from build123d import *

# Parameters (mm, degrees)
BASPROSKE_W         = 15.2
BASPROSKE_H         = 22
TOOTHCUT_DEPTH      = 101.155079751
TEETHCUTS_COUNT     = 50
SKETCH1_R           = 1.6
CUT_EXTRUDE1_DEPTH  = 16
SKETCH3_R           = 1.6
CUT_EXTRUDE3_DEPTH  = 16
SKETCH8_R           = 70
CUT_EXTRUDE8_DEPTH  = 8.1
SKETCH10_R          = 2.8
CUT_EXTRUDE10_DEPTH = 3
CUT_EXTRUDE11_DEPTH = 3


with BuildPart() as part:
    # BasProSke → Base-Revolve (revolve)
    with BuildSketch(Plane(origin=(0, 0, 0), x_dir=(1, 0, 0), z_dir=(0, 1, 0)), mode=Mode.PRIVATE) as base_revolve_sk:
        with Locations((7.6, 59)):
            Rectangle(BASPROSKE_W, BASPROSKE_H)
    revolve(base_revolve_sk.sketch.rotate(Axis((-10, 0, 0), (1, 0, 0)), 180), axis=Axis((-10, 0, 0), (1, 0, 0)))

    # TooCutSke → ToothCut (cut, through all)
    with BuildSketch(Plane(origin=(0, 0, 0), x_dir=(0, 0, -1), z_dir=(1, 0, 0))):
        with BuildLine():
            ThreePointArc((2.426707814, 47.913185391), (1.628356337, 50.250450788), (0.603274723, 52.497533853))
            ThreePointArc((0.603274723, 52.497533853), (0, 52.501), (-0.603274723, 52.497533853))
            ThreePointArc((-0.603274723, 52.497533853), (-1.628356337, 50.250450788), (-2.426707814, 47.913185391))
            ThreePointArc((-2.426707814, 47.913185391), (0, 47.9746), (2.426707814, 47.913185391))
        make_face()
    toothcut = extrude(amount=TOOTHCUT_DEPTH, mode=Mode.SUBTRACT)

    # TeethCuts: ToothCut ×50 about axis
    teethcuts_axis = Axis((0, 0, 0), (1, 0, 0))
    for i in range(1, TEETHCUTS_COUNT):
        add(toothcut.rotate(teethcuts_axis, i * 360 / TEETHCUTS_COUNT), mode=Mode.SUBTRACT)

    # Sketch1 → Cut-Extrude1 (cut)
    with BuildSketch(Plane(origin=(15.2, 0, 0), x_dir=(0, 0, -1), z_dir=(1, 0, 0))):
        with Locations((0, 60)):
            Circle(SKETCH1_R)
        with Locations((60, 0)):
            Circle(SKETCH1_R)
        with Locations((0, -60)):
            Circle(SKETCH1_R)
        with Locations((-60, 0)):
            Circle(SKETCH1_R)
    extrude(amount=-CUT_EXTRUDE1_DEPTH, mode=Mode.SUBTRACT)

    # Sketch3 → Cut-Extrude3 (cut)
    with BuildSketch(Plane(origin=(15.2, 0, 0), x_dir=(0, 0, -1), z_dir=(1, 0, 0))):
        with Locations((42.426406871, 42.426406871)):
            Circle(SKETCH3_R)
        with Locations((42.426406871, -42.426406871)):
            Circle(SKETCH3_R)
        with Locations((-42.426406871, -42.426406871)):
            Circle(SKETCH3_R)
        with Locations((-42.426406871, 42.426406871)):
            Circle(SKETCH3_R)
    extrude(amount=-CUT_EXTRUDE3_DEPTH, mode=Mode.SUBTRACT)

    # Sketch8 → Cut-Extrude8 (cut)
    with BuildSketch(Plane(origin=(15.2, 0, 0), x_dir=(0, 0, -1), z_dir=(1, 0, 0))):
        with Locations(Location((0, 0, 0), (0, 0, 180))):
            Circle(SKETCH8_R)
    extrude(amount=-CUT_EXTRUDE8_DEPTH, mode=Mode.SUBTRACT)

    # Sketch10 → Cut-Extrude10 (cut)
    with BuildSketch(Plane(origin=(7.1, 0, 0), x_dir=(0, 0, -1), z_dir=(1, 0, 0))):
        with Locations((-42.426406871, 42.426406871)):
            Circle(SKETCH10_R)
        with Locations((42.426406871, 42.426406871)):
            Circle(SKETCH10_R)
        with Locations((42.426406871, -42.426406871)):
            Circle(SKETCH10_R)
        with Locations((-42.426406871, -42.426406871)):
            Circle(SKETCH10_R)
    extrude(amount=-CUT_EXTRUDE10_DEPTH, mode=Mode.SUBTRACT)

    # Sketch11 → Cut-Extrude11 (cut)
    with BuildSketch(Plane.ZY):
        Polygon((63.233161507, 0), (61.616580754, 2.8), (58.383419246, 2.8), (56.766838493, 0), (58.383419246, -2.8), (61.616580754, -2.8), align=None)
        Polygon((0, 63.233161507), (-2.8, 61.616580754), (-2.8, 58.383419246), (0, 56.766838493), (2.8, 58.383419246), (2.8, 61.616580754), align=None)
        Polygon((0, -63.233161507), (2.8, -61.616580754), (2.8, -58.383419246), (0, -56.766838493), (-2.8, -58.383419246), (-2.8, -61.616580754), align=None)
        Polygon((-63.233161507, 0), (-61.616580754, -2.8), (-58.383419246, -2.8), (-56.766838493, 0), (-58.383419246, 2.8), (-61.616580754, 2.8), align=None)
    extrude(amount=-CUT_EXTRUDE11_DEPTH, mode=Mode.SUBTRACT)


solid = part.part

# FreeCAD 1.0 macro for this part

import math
import FreeCAD as App
import Part
import Sketcher
Q = App.Units.Quantity

doc = App.newDocument("Part")
params = doc.addObject("Spreadsheet::Sheet", "Params")
for row, (alias, value) in enumerate([
    ("sketch1_height", "22 mm"),
    ("sketch1_width", "15.2 mm"),
    ("revolution_angle", "360 deg"),
    ("sketch2_radius", "25 mm"),
    ("sketch3_diameter", "3.2 mm"),
    ("pocket2_length", "16 mm"),
    ("sketch4_diameter", "3.2 mm"),
    ("pocket3_length", "16 mm"),
    ("sketch5_diameter", "140 mm"),
    ("pocket4_length", "8.1 mm"),
    ("sketch6_diameter", "5.6 mm"),
    ("pocket5_length", "3 mm"),
    ("pocket6_length", "3 mm"),
], start=1):
    params.set(f"A{row}", alias)
    params.set(f"B{row}", "=" + value)
    params.setAlias(f"B{row}", alias)

body = doc.addObject("PartDesign::Body", "Body")

sketch1 = doc.addObject("Sketcher::SketchObject", "Sketch")
body.addObject(sketch1)
sketch1.AttachmentSupport = (doc.XZ_Plane, [""])
sketch1.MapMode = "FlatFace"
sketch1.addGeometry([
    Part.LineSegment(App.Vector(0, -70, 0), App.Vector(0, -48, 0)),
    Part.LineSegment(App.Vector(0, -48, 0), App.Vector(15, -48, 0)),
    Part.LineSegment(App.Vector(15, -48, 0), App.Vector(15, -70, 0)),
    Part.LineSegment(App.Vector(15, -70, 0), App.Vector(0, -70, 0)),
], False)
sketch1.addConstraint([
    Sketcher.Constraint("Coincident", 0, 2, 1, 1),
    Sketcher.Constraint("Coincident", 1, 2, 2, 1),
    Sketcher.Constraint("Coincident", 2, 2, 3, 1),
    Sketcher.Constraint("Coincident", 3, 2, 0, 1),
    Sketcher.Constraint("Vertical", 0),
    Sketcher.Constraint("Horizontal", 1),
    Sketcher.Constraint("Vertical", 2),
    Sketcher.Constraint("Horizontal", 3),
    Sketcher.Constraint("PointOnObject", 0, 2, -2),
    Sketcher.Constraint("DistanceY", 0, 1, 0, 2, 22.0),
    Sketcher.Constraint("DistanceX", 1, 1, 1, 2, 15.2),
    Sketcher.Constraint("DistanceY", 0, 2, -1, 1, 48.0),
])
sketch1.setExpression("Constraints[9]", "Params.sketch1_height")
sketch1.setExpression("Constraints[10]", "Params.sketch1_width")
revolution = doc.addObject("PartDesign::Revolution", "Revolution")
body.addObject(revolution)
revolution.Profile = sketch1
revolution.ReferenceAxis = (sketch1, ["H_Axis"])
revolution.setExpression("Angle", "Params.revolution_angle")

sketch2 = doc.addObject("Sketcher::SketchObject", "Sketch001")
body.addObject(sketch2)
sketch2.AttachmentSupport = (doc.YZ_Plane, [""])
sketch2.MapMode = "FlatFace"
sketch2.addGeometry([
    Part.ArcOfCircle(Part.Circle(App.Vector(41, 21.6, 0), App.Vector(0, 0, 1), 25), math.radians(-73.97), math.radians(-62.65)),
    Part.ArcOfCircle(Part.Circle(App.Vector(0, 0, 0), App.Vector(0, 0, 1), 52.5), math.radians(-0.66), math.radians(0.66)),
    Part.ArcOfCircle(Part.Circle(App.Vector(41, -21.6, 0), App.Vector(0, 0, 1), 25), math.radians(62.65), math.radians(73.97)),
    Part.ArcOfCircle(Part.Circle(App.Vector(0, 0, 0), App.Vector(0, 0, 1), 48), math.radians(-2.9), math.radians(2.9)),
], False)
sketch2.addConstraint([
    Sketcher.Constraint("Coincident", 0, 2, 1, 1),
    Sketcher.Constraint("Coincident", 1, 2, 2, 1),
    Sketcher.Constraint("Coincident", 2, 2, 3, 2),
    Sketcher.Constraint("Coincident", 3, 1, 0, 1),
    Sketcher.Constraint("Coincident", 1, 3, -1, 1),
    Sketcher.Constraint("Coincident", 3, 3, -1, 1),
    Sketcher.Constraint("Equal", 0, 2),
    Sketcher.Constraint("Symmetric", 0, 3, 2, 3, -1),
    Sketcher.Constraint("Radius", 0, 25.0),
    Sketcher.Constraint("Radius", 3, 47.9746),
    Sketcher.Constraint("Radius", 1, 52.501006),
    Sketcher.Constraint("DistanceY", 0, 2, 0, 3, 22.2048),
    Sketcher.Constraint("DistanceY", 2, 3, 0, 3, 43.203051),
])
sketch2.setExpression("Constraints[8]", "Params.sketch2_radius")
pocket1 = doc.addObject("PartDesign::Pocket", "Pocket")
body.addObject(pocket1)
pocket1.Profile = sketch2
pocket1.Type = "ThroughAll"
pocket1.Reversed = True
doc.recompute()

polarpattern = doc.addObject("PartDesign::PolarPattern", "PolarPattern")
body.addObject(polarpattern)
polarpattern.Originals = [pocket1]
polarpattern.Axis = (doc.X_Axis, [""])
polarpattern.Angle = 360
polarpattern.Occurrences = 50
body.Tip = polarpattern

sketch3 = doc.addObject("Sketcher::SketchObject", "Sketch002")
body.addObject(sketch3)
sketch3.AttachmentSupport = (doc.YZ_Plane, [""])
sketch3.MapMode = "FlatFace"
sketch3.AttachmentOffset = App.Placement(App.Vector(0, 0, 15.2), App.Rotation())
sketch3.addGeometry([
    Part.Circle(App.Vector(60, 0, 0), App.Vector(0, 0, 1), 1.6),
    Part.Circle(App.Vector(0, -60, 0), App.Vector(0, 0, 1), 1.6),
    Part.Circle(App.Vector(-60, 0, 0), App.Vector(0, 0, 1), 1.6),
    Part.Circle(App.Vector(0, 60, 0), App.Vector(0, 0, 1), 1.6),
], False)
sketch3.addConstraint([
    Sketcher.Constraint("Equal", 0, 1),
    Sketcher.Constraint("Equal", 1, 2),
    Sketcher.Constraint("Equal", 2, 3),
    Sketcher.Constraint("Symmetric", 0, 3, 2, 3, -1, 1),
    Sketcher.Constraint("Symmetric", 1, 3, 3, 3, -1, 1),
    Sketcher.Constraint("PointOnObject", 0, 3, -1),
    Sketcher.Constraint("PointOnObject", 1, 3, -2),
    Sketcher.Constraint("Diameter", 0, 3.2),
    Sketcher.Constraint("DistanceX", -1, 1, 0, 3, 60.0),
    Sketcher.Constraint("DistanceY", 1, 3, -1, 1, 60.0),
])
sketch3.setExpression("Constraints[7]", "Params.sketch3_diameter")
pocket2 = doc.addObject("PartDesign::Pocket", "Pocket001")
body.addObject(pocket2)
pocket2.Profile = sketch3
pocket2.setExpression("Length", "Params.pocket2_length")

sketch4 = doc.addObject("Sketcher::SketchObject", "Sketch003")
body.addObject(sketch4)
sketch4.AttachmentSupport = (doc.YZ_Plane, [""])
sketch4.MapMode = "FlatFace"
sketch4.AttachmentOffset = App.Placement(App.Vector(0, 0, 15.2), App.Rotation())
sketch4.addGeometry([
    Part.Circle(App.Vector(42.4, -42.4, 0), App.Vector(0, 0, 1), 1.6),
    Part.Circle(App.Vector(-42.4, -42.4, 0), App.Vector(0, 0, 1), 1.6),
    Part.Circle(App.Vector(-42.4, 42.4, 0), App.Vector(0, 0, 1), 1.6),
    Part.Circle(App.Vector(42.4, 42.4, 0), App.Vector(0, 0, 1), 1.6),
], False)
sketch4.addConstraint([
    Sketcher.Constraint("Equal", 0, 1),
    Sketcher.Constraint("Equal", 1, 2),
    Sketcher.Constraint("Equal", 2, 3),
    Sketcher.Constraint("Symmetric", 0, 3, 2, 3, -1, 1),
    Sketcher.Constraint("Symmetric", 1, 3, 3, 3, -1, 1),
    Sketcher.Constraint("Symmetric", 0, 3, 1, 3, -2),
    Sketcher.Constraint("Diameter", 0, 3.2),
    Sketcher.Constraint("DistanceX", -1, 1, 0, 3, 42.426407),
    Sketcher.Constraint("DistanceY", 0, 3, -1, 1, 42.426407),
])
sketch4.setExpression("Constraints[6]", "Params.sketch4_diameter")
pocket3 = doc.addObject("PartDesign::Pocket", "Pocket002")
body.addObject(pocket3)
pocket3.Profile = sketch4
pocket3.setExpression("Length", "Params.pocket3_length")

sketch5 = doc.addObject("Sketcher::SketchObject", "Sketch004")
body.addObject(sketch5)
sketch5.AttachmentSupport = (doc.YZ_Plane, [""])
sketch5.MapMode = "FlatFace"
sketch5.AttachmentOffset = App.Placement(App.Vector(0, 0, 15.2), App.Rotation())
sketch5.addGeometry(Part.Circle(App.Vector(0, 0, 0), App.Vector(0, 0, 1), 70), False)
sketch5.addConstraint([
    Sketcher.Constraint("Coincident", 0, 3, -1, 1),
    Sketcher.Constraint("Diameter", 0, 140.0),
])
sketch5.setExpression("Constraints[1]", "Params.sketch5_diameter")
pocket4 = doc.addObject("PartDesign::Pocket", "Pocket003")
body.addObject(pocket4)
pocket4.Profile = sketch5
pocket4.setExpression("Length", "Params.pocket4_length")

sketch6 = doc.addObject("Sketcher::SketchObject", "Sketch005")
body.addObject(sketch6)
sketch6.AttachmentSupport = (doc.YZ_Plane, [""])
sketch6.MapMode = "FlatFace"
sketch6.AttachmentOffset = App.Placement(App.Vector(0, 0, 7.1), App.Rotation())
sketch6.addGeometry([
    Part.Circle(App.Vector(42.4, 42.4, 0), App.Vector(0, 0, 1), 2.8),
    Part.Circle(App.Vector(42.4, -42.4, 0), App.Vector(0, 0, 1), 2.8),
    Part.Circle(App.Vector(-42.4, -42.4, 0), App.Vector(0, 0, 1), 2.8),
    Part.Circle(App.Vector(-42.4, 42.4, 0), App.Vector(0, 0, 1), 2.8),
], False)
sketch6.addConstraint([
    Sketcher.Constraint("Equal", 0, 1),
    Sketcher.Constraint("Equal", 1, 2),
    Sketcher.Constraint("Equal", 2, 3),
    Sketcher.Constraint("Symmetric", 0, 3, 2, 3, -1, 1),
    Sketcher.Constraint("Symmetric", 1, 3, 3, 3, -1, 1),
    Sketcher.Constraint("Symmetric", 1, 3, 2, 3, -2),
    Sketcher.Constraint("Diameter", 0, 5.6),
    Sketcher.Constraint("DistanceX", -1, 1, 0, 3, 42.426407),
    Sketcher.Constraint("DistanceY", -1, 1, 0, 3, 42.426407),
])
sketch6.setExpression("Constraints[6]", "Params.sketch6_diameter")
pocket5 = doc.addObject("PartDesign::Pocket", "Pocket004")
body.addObject(pocket5)
pocket5.Profile = sketch6
pocket5.setExpression("Length", "Params.pocket5_length")

sketch7 = doc.addObject("Sketcher::SketchObject", "Sketch006")
body.addObject(sketch7)
sketch7.AttachmentSupport = (doc.YZ_Plane, [""])
sketch7.MapMode = "FlatFace"
sketch7.addGeometry([
    Part.LineSegment(App.Vector(0, 63.2, 0), App.Vector(2.8, 61.6, 0)),
    Part.LineSegment(App.Vector(2.8, 61.6, 0), App.Vector(2.8, 58.4, 0)),
    Part.LineSegment(App.Vector(2.8, 58.4, 0), App.Vector(0, 56.8, 0)),
    Part.LineSegment(App.Vector(0, 56.8, 0), App.Vector(-2.8, 58.4, 0)),
    Part.LineSegment(App.Vector(-2.8, 58.4, 0), App.Vector(-2.8, 61.6, 0)),
    Part.LineSegment(App.Vector(-2.8, 61.6, 0), App.Vector(0, 63.2, 0)),
    Part.LineSegment(App.Vector(63.2, 0, 0), App.Vector(61.6, -2.8, 0)),
    Part.LineSegment(App.Vector(61.6, -2.8, 0), App.Vector(58.4, -2.8, 0)),
    Part.LineSegment(App.Vector(58.4, -2.8, 0), App.Vector(56.8, 0, 0)),
    Part.LineSegment(App.Vector(56.8, 0, 0), App.Vector(58.4, 2.8, 0)),
    Part.LineSegment(App.Vector(58.4, 2.8, 0), App.Vector(61.6, 2.8, 0)),
    Part.LineSegment(App.Vector(61.6, 2.8, 0), App.Vector(63.2, 0, 0)),
    Part.LineSegment(App.Vector(-63.2, 0, 0), App.Vector(-61.6, 2.8, 0)),
    Part.LineSegment(App.Vector(-61.6, 2.8, 0), App.Vector(-58.4, 2.8, 0)),
    Part.LineSegment(App.Vector(-58.4, 2.8, 0), App.Vector(-56.8, 0, 0)),
    Part.LineSegment(App.Vector(-56.8, 0, 0), App.Vector(-58.4, -2.8, 0)),
    Part.LineSegment(App.Vector(-58.4, -2.8, 0), App.Vector(-61.6, -2.8, 0)),
    Part.LineSegment(App.Vector(-61.6, -2.8, 0), App.Vector(-63.2, 0, 0)),
    Part.LineSegment(App.Vector(0, -63.2, 0), App.Vector(-2.8, -61.6, 0)),
    Part.LineSegment(App.Vector(-2.8, -61.6, 0), App.Vector(-2.8, -58.4, 0)),
    Part.LineSegment(App.Vector(-2.8, -58.4, 0), App.Vector(0, -56.8, 0)),
    Part.LineSegment(App.Vector(0, -56.8, 0), App.Vector(2.8, -58.4, 0)),
    Part.LineSegment(App.Vector(2.8, -58.4, 0), App.Vector(2.8, -61.6, 0)),
    Part.LineSegment(App.Vector(2.8, -61.6, 0), App.Vector(0, -63.2, 0)),
], False)
sketch7.addConstraint([
    Sketcher.Constraint("Coincident", 0, 2, 1, 1),
    Sketcher.Constraint("Coincident", 1, 2, 2, 1),
    Sketcher.Constraint("Coincident", 2, 2, 3, 1),
    Sketcher.Constraint("Coincident", 3, 2, 4, 1),
    Sketcher.Constraint("Coincident", 4, 2, 5, 1),
    Sketcher.Constraint("Coincident", 5, 2, 0, 1),
    Sketcher.Constraint("Coincident", 6, 2, 7, 1),
    Sketcher.Constraint("Coincident", 7, 2, 8, 1),
    Sketcher.Constraint("Coincident", 8, 2, 9, 1),
    Sketcher.Constraint("Coincident", 9, 2, 10, 1),
    Sketcher.Constraint("Coincident", 10, 2, 11, 1),
    Sketcher.Constraint("Coincident", 11, 2, 6, 1),
    Sketcher.Constraint("Coincident", 12, 2, 13, 1),
    Sketcher.Constraint("Coincident", 13, 2, 14, 1),
    Sketcher.Constraint("Coincident", 14, 2, 15, 1),
    Sketcher.Constraint("Coincident", 15, 2, 16, 1),
    Sketcher.Constraint("Coincident", 16, 2, 17, 1),
    Sketcher.Constraint("Coincident", 17, 2, 12, 1),
    Sketcher.Constraint("Coincident", 18, 2, 19, 1),
    Sketcher.Constraint("Coincident", 19, 2, 20, 1),
    Sketcher.Constraint("Coincident", 20, 2, 21, 1),
    Sketcher.Constraint("Coincident", 21, 2, 22, 1),
    Sketcher.Constraint("Coincident", 22, 2, 23, 1),
    Sketcher.Constraint("Coincident", 23, 2, 18, 1),
    Sketcher.Constraint("Vertical", 1),
    Sketcher.Constraint("Vertical", 4),
    Sketcher.Constraint("Horizontal", 7),
    Sketcher.Constraint("Horizontal", 10),
    Sketcher.Constraint("Horizontal", 13),
    Sketcher.Constraint("Horizontal", 16),
    Sketcher.Constraint("Vertical", 19),
    Sketcher.Constraint("Vertical", 22),
    Sketcher.Constraint("Symmetric", 6, 2, 12, 2, -1, 1),
    Sketcher.Constraint("Symmetric", 8, 2, 14, 2, -1, 1),
    Sketcher.Constraint("Symmetric", 9, 2, 15, 2, -1, 1),
    Sketcher.Constraint("Symmetric", 11, 2, 17, 2, -1, 1),
    Sketcher.Constraint("Symmetric", 0, 2, 18, 2, -1, 1),
    Sketcher.Constraint("Symmetric", 2, 2, 20, 2, -1, 1),
    Sketcher.Constraint("Symmetric", 3, 2, 21, 2, -1, 1),
    Sketcher.Constraint("Symmetric", 5, 2, 23, 2, -1, 1),
    Sketcher.Constraint("Symmetric", 1, 2, 3, 2, -2),
    Sketcher.Constraint("Symmetric", 10, 2, 12, 2, -2),
    Sketcher.Constraint("PointOnObject", 2, 2, -2),
    Sketcher.Constraint("PointOnObject", 5, 2, -2),
    Sketcher.Constraint("PointOnObject", 8, 2, -1),
    Sketcher.Constraint("PointOnObject", 11, 2, -1),
    Sketcher.Constraint("Parallel", 0, 3),
    Sketcher.Constraint("Parallel", 2, 5),
    Sketcher.Constraint("Perpendicular", 3, 6),
    Sketcher.Constraint("Perpendicular", 5, 8),
    Sketcher.Constraint("Parallel", 6, 9),
    Sketcher.Constraint("Parallel", 11, 14),
    Sketcher.Constraint("Parallel", 14, 17),
    Sketcher.Constraint("Perpendicular", 17, 20),
    Sketcher.Constraint("Parallel", 20, 23),
    Sketcher.Constraint("Equal", 16, 1),
    Sketcher.Constraint("Equal", 5, 6),
    Sketcher.Constraint("Angle", 0, Q("-30 deg")),
    Sketcher.Constraint("DistanceX", -1, 1, 0, 2, 2.8),
    Sketcher.Constraint("DistanceX", 7, 2, 7, 1, 3.233162),
    Sketcher.Constraint("DistanceY", -1, 1, 0, 2, 61.616581),
    Sketcher.Constraint("DistanceX", -1, 1, 6, 2, 61.616581),
])
pocket6 = doc.addObject("PartDesign::Pocket", "Pocket005")
body.addObject(pocket6)
pocket6.Profile = sketch7
pocket6.setExpression("Length", "Params.pocket6_length")
pocket6.Reversed = True

doc.recompute()
